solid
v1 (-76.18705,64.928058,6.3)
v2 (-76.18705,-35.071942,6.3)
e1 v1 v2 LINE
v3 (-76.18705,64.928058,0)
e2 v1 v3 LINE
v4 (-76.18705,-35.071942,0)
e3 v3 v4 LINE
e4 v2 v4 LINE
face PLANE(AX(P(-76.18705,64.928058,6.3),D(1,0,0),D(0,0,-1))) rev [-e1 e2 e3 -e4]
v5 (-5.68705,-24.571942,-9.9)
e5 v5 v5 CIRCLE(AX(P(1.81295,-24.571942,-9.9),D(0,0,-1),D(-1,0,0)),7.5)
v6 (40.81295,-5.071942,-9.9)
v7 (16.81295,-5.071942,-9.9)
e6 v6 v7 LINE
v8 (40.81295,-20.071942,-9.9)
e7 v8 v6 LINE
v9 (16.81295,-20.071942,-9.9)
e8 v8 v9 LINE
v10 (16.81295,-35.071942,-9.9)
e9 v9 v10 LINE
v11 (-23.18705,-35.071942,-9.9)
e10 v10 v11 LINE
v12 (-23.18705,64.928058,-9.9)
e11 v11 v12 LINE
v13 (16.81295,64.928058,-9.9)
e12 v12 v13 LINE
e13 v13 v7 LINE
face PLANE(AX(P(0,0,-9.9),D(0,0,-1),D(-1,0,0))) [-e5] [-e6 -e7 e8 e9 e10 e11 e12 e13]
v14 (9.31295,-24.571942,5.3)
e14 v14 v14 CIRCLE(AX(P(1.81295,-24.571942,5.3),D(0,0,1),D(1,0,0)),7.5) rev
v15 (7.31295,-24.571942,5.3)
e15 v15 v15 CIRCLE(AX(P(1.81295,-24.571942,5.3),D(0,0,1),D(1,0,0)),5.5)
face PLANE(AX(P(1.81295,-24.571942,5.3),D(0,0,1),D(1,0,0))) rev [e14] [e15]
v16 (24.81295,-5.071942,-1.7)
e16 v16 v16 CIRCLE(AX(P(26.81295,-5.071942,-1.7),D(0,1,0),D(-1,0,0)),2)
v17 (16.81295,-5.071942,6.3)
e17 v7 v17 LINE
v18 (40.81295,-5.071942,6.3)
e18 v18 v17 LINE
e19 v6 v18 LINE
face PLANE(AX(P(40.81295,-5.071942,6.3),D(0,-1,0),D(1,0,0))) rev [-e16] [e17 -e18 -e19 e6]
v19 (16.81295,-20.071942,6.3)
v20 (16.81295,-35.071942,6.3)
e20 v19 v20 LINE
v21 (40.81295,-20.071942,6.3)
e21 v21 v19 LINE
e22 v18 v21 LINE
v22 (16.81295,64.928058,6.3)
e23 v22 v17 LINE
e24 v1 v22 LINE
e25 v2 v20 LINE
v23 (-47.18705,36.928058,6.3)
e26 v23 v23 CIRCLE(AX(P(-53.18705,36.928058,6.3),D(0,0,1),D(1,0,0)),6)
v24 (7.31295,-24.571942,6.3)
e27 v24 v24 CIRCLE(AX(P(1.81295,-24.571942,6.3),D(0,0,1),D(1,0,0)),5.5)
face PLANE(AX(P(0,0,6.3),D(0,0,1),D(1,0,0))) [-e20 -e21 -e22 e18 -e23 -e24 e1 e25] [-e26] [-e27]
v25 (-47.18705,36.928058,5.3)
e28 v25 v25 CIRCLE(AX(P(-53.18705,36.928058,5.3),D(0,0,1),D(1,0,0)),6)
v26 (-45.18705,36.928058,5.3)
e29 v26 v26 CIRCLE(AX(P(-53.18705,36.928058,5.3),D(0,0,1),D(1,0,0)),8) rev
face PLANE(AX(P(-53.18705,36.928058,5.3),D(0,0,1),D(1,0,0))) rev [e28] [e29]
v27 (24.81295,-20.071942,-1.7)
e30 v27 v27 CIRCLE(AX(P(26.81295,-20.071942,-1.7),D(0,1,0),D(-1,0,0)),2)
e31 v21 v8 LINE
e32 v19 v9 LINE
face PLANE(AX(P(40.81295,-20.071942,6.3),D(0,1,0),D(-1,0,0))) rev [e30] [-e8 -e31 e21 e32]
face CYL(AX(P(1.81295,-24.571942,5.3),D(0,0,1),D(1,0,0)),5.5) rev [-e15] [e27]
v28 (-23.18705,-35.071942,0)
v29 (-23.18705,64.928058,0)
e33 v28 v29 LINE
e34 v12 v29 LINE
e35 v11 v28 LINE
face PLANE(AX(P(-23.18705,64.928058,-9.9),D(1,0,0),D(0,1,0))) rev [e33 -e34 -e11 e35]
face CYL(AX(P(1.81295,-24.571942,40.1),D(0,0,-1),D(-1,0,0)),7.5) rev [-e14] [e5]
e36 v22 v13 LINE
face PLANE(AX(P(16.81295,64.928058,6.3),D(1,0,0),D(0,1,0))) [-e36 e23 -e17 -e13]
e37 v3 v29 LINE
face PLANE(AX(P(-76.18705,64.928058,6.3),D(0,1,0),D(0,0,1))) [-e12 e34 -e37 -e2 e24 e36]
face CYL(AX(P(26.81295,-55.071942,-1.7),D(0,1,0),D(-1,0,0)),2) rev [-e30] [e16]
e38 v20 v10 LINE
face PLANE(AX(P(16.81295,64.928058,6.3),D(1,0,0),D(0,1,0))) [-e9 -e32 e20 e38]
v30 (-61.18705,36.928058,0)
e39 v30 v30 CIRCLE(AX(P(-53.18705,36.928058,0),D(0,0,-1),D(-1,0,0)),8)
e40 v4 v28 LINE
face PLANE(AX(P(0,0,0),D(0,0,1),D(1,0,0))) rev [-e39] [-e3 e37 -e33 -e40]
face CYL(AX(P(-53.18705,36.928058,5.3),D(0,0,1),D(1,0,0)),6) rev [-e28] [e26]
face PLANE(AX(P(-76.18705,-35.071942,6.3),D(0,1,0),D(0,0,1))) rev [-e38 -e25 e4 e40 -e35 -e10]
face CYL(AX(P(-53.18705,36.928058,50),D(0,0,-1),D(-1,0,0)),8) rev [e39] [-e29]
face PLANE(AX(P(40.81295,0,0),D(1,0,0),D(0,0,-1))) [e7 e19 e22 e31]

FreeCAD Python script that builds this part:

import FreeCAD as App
import Part
import Sketcher
from FreeCAD import Vector
Q = App.Units.Quantity


def add_polygon(sketch, points):
    """Adds a closed chain of lines whose ends are joined by coincident constraints."""
    first, n = sketch.GeometryCount, len(points)
    for a, b in zip(points, points[1:] + points[:1]):
        sketch.addGeometry(Part.LineSegment(App.Vector(*a, 0), App.Vector(*b, 0)), False)
    for i in range(n):
        sketch.addConstraint(Sketcher.Constraint("Coincident", first + i, 2, first + (i + 1) % n, 1))

doc = App.newDocument("Part")
params = doc.addObject("Spreadsheet::Sheet", "Params")
for row, (alias, value) in enumerate([
    ("sketch1_width", "93 mm"),
    ("sketch1_height", "100 mm"),
    ("pad1_length", "6.3 mm"),
    ("sketch2_width", "40 mm"),
    ("sketch2_height", "100 mm"),
    ("pad2_length", "9.9 mm"),
    ("sketch3_width", "15 mm"),
    ("sketch3_height", "16.2 mm"),
    ("pad3_length", "24 mm"),
    ("sketch4_diameter", "4 mm"),
    ("pocket1_length", "50 mm"),
    ("sketch5_diameter", "15 mm"),
    ("pocket2_length", "50 mm"),
    ("sketch6_diameter", "16 mm"),
    ("pocket3_length", "50 mm"),
    ("sketch7_diameter", "16 mm"),
    ("sketch7_diameter2", "12 mm"),
    ("pad4_length", "1 mm"),
    ("sketch8_diameter", "15 mm"),
    ("sketch8_diameter2", "11 mm"),
    ("pad5_length", "1 mm"),
], start=1):
    params.set(f"A{row}", alias)
    params.set(f"B{row}", "=" + value)
    params.setAlias(f"B{row}", alias)

body = doc.addObject("PartDesign::Body", "Body")

# Sketch on XY plane
sketch1 = body.newObject("Sketcher::SketchObject", "Sketch")
sketch1.AttachmentSupport = (doc.getObject("XY_Plane"), [""])
sketch1.MapMode = "FlatFace"
add_polygon(sketch1, [(-76.18705, 64.928058), (-76.18705, -35.071942), (16.81295, -35.071942), (16.81295, 64.928058)])  # lines 0-3
sketch1.addConstraint(Sketcher.Constraint("Vertical", 0))
sketch1.addConstraint(Sketcher.Constraint("Horizontal", 1))
sketch1.addConstraint(Sketcher.Constraint("Vertical", 2))
sketch1.addConstraint(Sketcher.Constraint("Horizontal", 3))
sketch1.addConstraint(Sketcher.Constraint("DistanceX", 1, 1, 1, 2, Q("93 mm")))
sketch1.addConstraint(Sketcher.Constraint("DistanceY", 0, 2, 0, 1, Q("100 mm")))
sketch1.addConstraint(Sketcher.Constraint("DistanceX", 0, 2, -1, 1, Q("76.18705 mm")))
sketch1.addConstraint(Sketcher.Constraint("DistanceY", 0, 2, -1, 1, Q("35.071942 mm")))
sketch1.setExpression("Constraints[8]", "Params.sketch1_width")
sketch1.setExpression("Constraints[9]", "Params.sketch1_height")
pad1 = body.newObject("PartDesign::Pad", "Pad")
pad1.Profile = sketch1
pad1.setExpression("Length", "Params.pad1_length")

# Sketch on XY plane
sketch2 = body.newObject("Sketcher::SketchObject", "Sketch001")
sketch2.AttachmentSupport = (doc.getObject("XY_Plane"), [""])
sketch2.MapMode = "FlatFace"
add_polygon(sketch2, [(16.81295, 64.928058), (16.81295, -35.071942), (-23.18705, -35.071942), (-23.18705, 64.928058)])  # lines 0-3
sketch2.addConstraint(Sketcher.Constraint("Vertical", 0))
sketch2.addConstraint(Sketcher.Constraint("Horizontal", 1))
sketch2.addConstraint(Sketcher.Constraint("Vertical", 2))
sketch2.addConstraint(Sketcher.Constraint("Horizontal", 3))
sketch2.addConstraint(Sketcher.Constraint("DistanceX", 1, 2, 1, 1, Q("40 mm")))
sketch2.addConstraint(Sketcher.Constraint("DistanceY", 0, 2, 0, 1, Q("100 mm")))
sketch2.addConstraint(Sketcher.Constraint("DistanceX", -1, 1, 0, 2, Q("16.81295 mm")))
sketch2.addConstraint(Sketcher.Constraint("DistanceY", 0, 2, -1, 1, Q("35.071942 mm")))
sketch2.setExpression("Constraints[8]", "Params.sketch2_width")
sketch2.setExpression("Constraints[9]", "Params.sketch2_height")
pad2 = body.newObject("PartDesign::Pad", "Pad001")
pad2.Profile = sketch2
pad2.setExpression("Length", "Params.pad2_length")
pad2.Reversed = True

# Sketch on YZ plane
sketch3 = body.newObject("Sketcher::SketchObject", "Sketch002")
sketch3.AttachmentSupport = (doc.getObject("YZ_Plane"), [""])
sketch3.MapMode = "FlatFace"
sketch3.AttachmentOffset = App.Placement(Vector(0, 0, 16.81295), App.Rotation())
add_polygon(sketch3, [(-5.071942, 6.3), (-20.071942, 6.3), (-20.071942, -9.9), (-5.071942, -9.9)])  # lines 0-3
sketch3.addConstraint(Sketcher.Constraint("Horizontal", 0))
sketch3.addConstraint(Sketcher.Constraint("Vertical", 1))
sketch3.addConstraint(Sketcher.Constraint("Horizontal", 2))
sketch3.addConstraint(Sketcher.Constraint("Vertical", 3))
sketch3.addConstraint(Sketcher.Constraint("DistanceX", 0, 2, 0, 1, Q("15 mm")))
sketch3.addConstraint(Sketcher.Constraint("DistanceY", 1, 2, 1, 1, Q("16.2 mm")))
sketch3.addConstraint(Sketcher.Constraint("DistanceY", -1, 1, 0, 2, Q("6.3 mm")))
sketch3.addConstraint(Sketcher.Constraint("DistanceX", 0, 2, -1, 1, Q("20.071942 mm")))
sketch3.setExpression("Constraints[8]", "Params.sketch3_width")
sketch3.setExpression("Constraints[9]", "Params.sketch3_height")
pad3 = body.newObject("PartDesign::Pad", "Pad002")
pad3.Profile = sketch3
pad3.setExpression("Length", "Params.pad3_length")

# Sketch on XZ plane
sketch4 = body.newObject("Sketcher::SketchObject", "Sketch003")
sketch4.AttachmentSupport = (doc.getObject("XZ_Plane"), [""])
sketch4.MapMode = "FlatFace"
sketch4.AttachmentOffset = App.Placement(Vector(0, 0, 5.071942), App.Rotation())
sketch4.addGeometry(Part.Circle(Vector(26.81295, -1.7, 0), Vector(0, 0, 1), 2), False)
sketch4.addConstraint(Sketcher.Constraint("Diameter", 0, Q("4 mm")))
sketch4.addConstraint(Sketcher.Constraint("DistanceY", 0, 3, -1, 1, Q("1.7 mm")))
sketch4.addConstraint(Sketcher.Constraint("DistanceX", -1, 1, 0, 3, Q("26.81295 mm")))
sketch4.setExpression("Constraints[0]", "Params.sketch4_diameter")
pocket1 = body.newObject("PartDesign::Pocket", "Pocket")
pocket1.Profile = sketch4
pocket1.setExpression("Length", "Params.pocket1_length")
pocket1.Reversed = True

# Sketch on XY plane
sketch5 = body.newObject("Sketcher::SketchObject", "Sketch004")
sketch5.AttachmentSupport = (doc.getObject("XY_Plane"), [""])
sketch5.MapMode = "FlatFace"
sketch5.AttachmentOffset = App.Placement(Vector(0, 0, -9.9), App.Rotation())
sketch5.addGeometry(Part.Circle(Vector(1.81295, -24.571942, 0), Vector(0, 0, 1), 7.5), False)
sketch5.addConstraint(Sketcher.Constraint("Diameter", 0, Q("15 mm")))
sketch5.addConstraint(Sketcher.Constraint("DistanceX", -1, 1, 0, 3, Q("1.81295 mm")))
sketch5.addConstraint(Sketcher.Constraint("DistanceY", 0, 3, -1, 1, Q("24.571942 mm")))
sketch5.setExpression("Constraints[0]", "Params.sketch5_diameter")
pocket2 = body.newObject("PartDesign::Pocket", "Pocket001")
pocket2.Profile = sketch5
pocket2.setExpression("Length", "Params.pocket2_length")
pocket2.Reversed = True

# Sketch on XY plane
sketch6 = body.newObject("Sketcher::SketchObject", "Sketch005")
sketch6.AttachmentSupport = (doc.getObject("XY_Plane"), [""])
sketch6.MapMode = "FlatFace"
sketch6.addGeometry(Part.Circle(Vector(-53.18705, 36.928058, 0), Vector(0, 0, 1), 8), False)
sketch6.addConstraint(Sketcher.Constraint("Diameter", 0, Q("16 mm")))
sketch6.addConstraint(Sketcher.Constraint("DistanceX", 0, 3, -1, 1, Q("53.18705 mm")))
sketch6.addConstraint(Sketcher.Constraint("DistanceY", -1, 1, 0, 3, Q("36.928058 mm")))
sketch6.setExpression("Constraints[0]", "Params.sketch6_diameter")
pocket3 = body.newObject("PartDesign::Pocket", "Pocket002")
pocket3.Profile = sketch6
pocket3.setExpression("Length", "Params.pocket3_length")
pocket3.Reversed = True

# Sketch on XY plane
sketch7 = body.newObject("Sketcher::SketchObject", "Sketch006")
sketch7.AttachmentSupport = (doc.getObject("XY_Plane"), [""])
sketch7.MapMode = "FlatFace"
sketch7.AttachmentOffset = App.Placement(Vector(0, 0, 5.3), App.Rotation())
sketch7.addGeometry(Part.Circle(Vector(-53.18705, 36.928058, 0), Vector(0, 0, 1), 8), False)
sketch7.addGeometry(Part.Circle(Vector(-53.18705, 36.928058, 0), Vector(0, 0, 1), 6), False)
sketch7.addConstraint(Sketcher.Constraint("Coincident", 1, 3, 0, 3))
sketch7.addConstraint(Sketcher.Constraint("Diameter", 0, Q("16 mm")))
sketch7.addConstraint(Sketcher.Constraint("Diameter", 1, Q("12 mm")))
sketch7.addConstraint(Sketcher.Constraint("DistanceX", 0, 3, -1, 1, Q("53.18705 mm")))
sketch7.addConstraint(Sketcher.Constraint("DistanceY", -1, 1, 0, 3, Q("36.928058 mm")))
sketch7.setExpression("Constraints[1]", "Params.sketch7_diameter")
sketch7.setExpression("Constraints[2]", "Params.sketch7_diameter2")
pad4 = body.newObject("PartDesign::Pad", "Pad003")
pad4.Profile = sketch7
pad4.setExpression("Length", "Params.pad4_length")

# Sketch on XY plane
sketch8 = body.newObject("Sketcher::SketchObject", "Sketch007")
sketch8.AttachmentSupport = (doc.getObject("XY_Plane"), [""])
sketch8.MapMode = "FlatFace"
sketch8.AttachmentOffset = App.Placement(Vector(0, 0, 5.3), App.Rotation())
sketch8.addGeometry(Part.Circle(Vector(1.81295, -24.571942, 0), Vector(0, 0, 1), 7.5), False)
sketch8.addGeometry(Part.Circle(Vector(1.81295, -24.571942, 0), Vector(0, 0, 1), 5.5), False)
sketch8.addConstraint(Sketcher.Constraint("Coincident", 1, 3, 0, 3))
sketch8.addConstraint(Sketcher.Constraint("Diameter", 0, Q("15 mm")))
sketch8.addConstraint(Sketcher.Constraint("Diameter", 1, Q("11 mm")))
sketch8.addConstraint(Sketcher.Constraint("DistanceX", -1, 1, 0, 3, Q("1.81295 mm")))
sketch8.addConstraint(Sketcher.Constraint("DistanceY", 0, 3, -1, 1, Q("24.571942 mm")))
sketch8.setExpression("Constraints[1]", "Params.sketch8_diameter")
sketch8.setExpression("Constraints[2]", "Params.sketch8_diameter2")
pad5 = body.newObject("PartDesign::Pad", "Pad004")
pad5.Profile = sketch8
pad5.setExpression("Length", "Params.pad5_length")

doc.recompute()
